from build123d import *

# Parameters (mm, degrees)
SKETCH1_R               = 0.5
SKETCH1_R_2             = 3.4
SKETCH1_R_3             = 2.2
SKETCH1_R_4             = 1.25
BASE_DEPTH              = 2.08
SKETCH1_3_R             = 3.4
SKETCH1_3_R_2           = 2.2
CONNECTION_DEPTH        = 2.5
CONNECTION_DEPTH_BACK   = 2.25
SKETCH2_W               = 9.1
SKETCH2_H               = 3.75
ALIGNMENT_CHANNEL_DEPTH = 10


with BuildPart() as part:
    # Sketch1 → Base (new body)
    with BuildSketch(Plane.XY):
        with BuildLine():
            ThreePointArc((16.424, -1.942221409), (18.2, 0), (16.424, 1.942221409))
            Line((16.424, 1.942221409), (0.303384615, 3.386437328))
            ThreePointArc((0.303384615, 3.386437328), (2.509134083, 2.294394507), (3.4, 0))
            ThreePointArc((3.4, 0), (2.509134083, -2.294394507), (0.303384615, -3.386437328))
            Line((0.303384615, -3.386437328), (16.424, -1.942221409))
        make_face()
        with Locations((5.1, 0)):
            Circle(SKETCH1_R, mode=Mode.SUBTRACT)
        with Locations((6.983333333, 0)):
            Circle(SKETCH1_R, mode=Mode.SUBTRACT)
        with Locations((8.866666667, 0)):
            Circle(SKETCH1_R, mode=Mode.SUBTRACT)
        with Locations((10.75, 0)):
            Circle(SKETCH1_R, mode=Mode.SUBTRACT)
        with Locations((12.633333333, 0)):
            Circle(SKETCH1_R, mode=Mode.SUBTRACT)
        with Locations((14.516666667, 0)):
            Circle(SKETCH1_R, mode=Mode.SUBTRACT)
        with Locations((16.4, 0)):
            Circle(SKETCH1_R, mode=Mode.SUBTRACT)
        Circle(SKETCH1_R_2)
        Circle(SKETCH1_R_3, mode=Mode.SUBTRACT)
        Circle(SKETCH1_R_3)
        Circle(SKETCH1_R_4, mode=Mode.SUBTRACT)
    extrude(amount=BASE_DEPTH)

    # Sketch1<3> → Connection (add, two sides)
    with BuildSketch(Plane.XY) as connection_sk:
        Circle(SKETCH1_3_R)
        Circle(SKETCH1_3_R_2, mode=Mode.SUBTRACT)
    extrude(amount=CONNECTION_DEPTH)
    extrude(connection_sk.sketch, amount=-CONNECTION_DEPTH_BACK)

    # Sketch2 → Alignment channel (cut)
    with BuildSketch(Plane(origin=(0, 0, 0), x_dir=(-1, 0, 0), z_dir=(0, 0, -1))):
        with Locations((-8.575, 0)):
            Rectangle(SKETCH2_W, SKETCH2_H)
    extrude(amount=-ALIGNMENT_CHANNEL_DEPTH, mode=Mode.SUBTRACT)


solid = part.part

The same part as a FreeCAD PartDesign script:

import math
import FreeCAD as App
import Part
import Sketcher


def add_polygon(sketch, points):
    """Adds a closed chain of lines whose ends are joined by coincident constraints."""
    first, n = sketch.GeometryCount, len(points)
    for a, b in zip(points, points[1:] + points[:1]):
        sketch.addGeometry(Part.LineSegment(App.Vector(*a, 0), App.Vector(*b, 0)), False)
    for i in range(n):
        sketch.addConstraint(Sketcher.Constraint("Coincident", first + i, 2, first + (i + 1) % n, 1))

doc = App.newDocument("Part")
body = doc.addObject("PartDesign::Body", "Body")

# Sketch on XY plane
sketch1 = body.newObject("Sketcher::SketchObject", "Sketch")
sketch1.AttachmentSupport = (doc.getObject("XY_Plane"), [""])
sketch1.MapMode = "FlatFace"
sketch1.addGeometry(Part.ArcOfCircle(Part.Circle(App.Vector(16.25, 0, 0), App.Vector(0, 0, 1), 1.95), math.radians(-84.880645), math.radians(84.880645)), False)
sketch1.addGeometry(Part.LineSegment(App.Vector(16.424, 1.942221, 0), App.Vector(0.303385, 3.386437, 0)), False)
sketch1.addGeometry(Part.ArcOfCircle(Part.Circle(App.Vector(0, 0, 0), App.Vector(0, 0, 1), 3.4), math.radians(84.880645), math.radians(275.119355)), False)
sketch1.addGeometry(Part.LineSegment(App.Vector(0.303385, -3.386437, 0), App.Vector(16.424, -1.942221, 0)), False)
sketch1.addGeometry(Part.Circle(App.Vector(0, 0, 0), App.Vector(0, 0, 1), 1.25), False)
sketch1.addGeometry(Part.Circle(App.Vector(5.1, 0, 0), App.Vector(0, 0, 1), 0.5), False)
sketch1.addGeometry(Part.Circle(App.Vector(6.983333, 0, 0), App.Vector(0, 0, 1), 0.5), False)
sketch1.addGeometry(Part.Circle(App.Vector(8.866667, 0, 0), App.Vector(0, 0, 1), 0.5), False)
sketch1.addGeometry(Part.Circle(App.Vector(10.75, 0, 0), App.Vector(0, 0, 1), 0.5), False)
sketch1.addGeometry(Part.Circle(App.Vector(12.633333, 0, 0), App.Vector(0, 0, 1), 0.5), False)
sketch1.addGeometry(Part.Circle(App.Vector(14.516667, 0, 0), App.Vector(0, 0, 1), 0.5), False)
sketch1.addGeometry(Part.Circle(App.Vector(16.4, 0, 0), App.Vector(0, 0, 1), 0.5), False)
sketch1.addConstraint(Sketcher.Constraint("Tangent", 0, 2, 1, 1))
sketch1.addConstraint(Sketcher.Constraint("Tangent", 1, 2, 2, 1))
sketch1.addConstraint(Sketcher.Constraint("Tangent", 2, 2, 3, 1))
sketch1.addConstraint(Sketcher.Constraint("Tangent", 3, 2, 0, 1))
sketch1.addConstraint(Sketcher.Constraint("Coincident", 2, 3, -1, 1))
sketch1.addConstraint(Sketcher.Constraint("Coincident", 4, 3, -1, 1))
sketch1.addConstraint(Sketcher.Constraint("Equal", 5, 6))
sketch1.addConstraint(Sketcher.Constraint("Equal", 6, 7))
sketch1.addConstraint(Sketcher.Constraint("Equal", 7, 8))
sketch1.addConstraint(Sketcher.Constraint("Equal", 8, 9))
sketch1.addConstraint(Sketcher.Constraint("Equal", 9, 10))
sketch1.addConstraint(Sketcher.Constraint("Equal", 10, 11))
sketch1.addConstraint(Sketcher.Constraint("PointOnObject", 0, 3, -1))
sketch1.addConstraint(Sketcher.Constraint("PointOnObject", 5, 3, -1))
sketch1.addConstraint(Sketcher.Constraint("PointOnObject", 6, 3, -1))
sketch1.addConstraint(Sketcher.Constraint("PointOnObject", 7, 3, -1))
sketch1.addConstraint(Sketcher.Constraint("PointOnObject", 8, 3, -1))
sketch1.addConstraint(Sketcher.Constraint("PointOnObject", 9, 3, -1))
sketch1.addConstraint(Sketcher.Constraint("PointOnObject", 10, 3, -1))
sketch1.addConstraint(Sketcher.Constraint("PointOnObject", 11, 3, -1))
sketch1.addConstraint(Sketcher.Constraint("Diameter", 5, 1.0))
sketch1.addConstraint(Sketcher.Constraint("Diameter", 4, 2.5))
sketch1.addConstraint(Sketcher.Constraint("Radius", 2, 3.4))
sketch1.addConstraint(Sketcher.Constraint("Radius", 0, 1.95))
sketch1.addConstraint(Sketcher.Constraint("DistanceX", -1, 1, 5, 3, 5.1))
sketch1.addConstraint(Sketcher.Constraint("DistanceX", -1, 1, 11, 3, 16.4))
sketch1.addConstraint(Sketcher.Constraint("DistanceX", 8, 3, 0, 3, 5.5))
sketch1.addConstraint(Sketcher.Constraint("DistanceX", -1, 1, 0, 3, 16.25))
sketch1.addConstraint(Sketcher.Constraint("DistanceX", 6, 3, 9, 3, 5.65))
sketch1.addConstraint(Sketcher.Constraint("DistanceX", 7, 3, 10, 3, 5.65))
sketch1.addConstraint(Sketcher.Constraint("DistanceX", 1, 2, 6, 3, 6.679949))
sketch1.addConstraint(Sketcher.Constraint("DistanceX", -1, 1, 7, 3, 8.866667))
pad1 = body.newObject("PartDesign::Pad", "Pad")
pad1.Profile = sketch1
pad1.Length = 2.08

# Sketch on XY plane
sketch2 = body.newObject("Sketcher::SketchObject", "Sketch001")
sketch2.AttachmentSupport = (doc.getObject("XY_Plane"), [""])
sketch2.MapMode = "FlatFace"
sketch2.addGeometry(Part.Circle(App.Vector(0, 0, 0), App.Vector(0, 0, 1), 3.4), False)
sketch2.addGeometry(Part.Circle(App.Vector(0, 0, 0), App.Vector(0, 0, 1), 2.2), False)
sketch2.addConstraint(Sketcher.Constraint("Coincident", 0, 3, -1, 1))
sketch2.addConstraint(Sketcher.Constraint("Coincident", 1, 3, -1, 1))
sketch2.addConstraint(Sketcher.Constraint("Diameter", 0, 6.8))
sketch2.addConstraint(Sketcher.Constraint("Diameter", 1, 4.4))
pad2 = body.newObject("PartDesign::Pad", "Pad001")
pad2.Profile = sketch2
pad2.Type = "TwoLengths"
pad2.Length = 2.5
pad2.Length2 = 2.25

# Sketch on XY plane
sketch3 = body.newObject("Sketcher::SketchObject", "Sketch002")
sketch3.AttachmentSupport = (doc.getObject("XY_Plane"), [""])
sketch3.MapMode = "FlatFace"
add_polygon(sketch3, [(13.125, 1.875), (13.125, -1.875), (4.025, -1.875), (4.025, 1.875)])  # lines 0-3
sketch3.addConstraint(Sketcher.Constraint("Vertical", 0))
sketch3.addConstraint(Sketcher.Constraint("Horizontal", 1))
sketch3.addConstraint(Sketcher.Constraint("Vertical", 2))
sketch3.addConstraint(Sketcher.Constraint("Horizontal", 3))
sketch3.addConstraint(Sketcher.Constraint("DistanceX", 1, 2, 1, 1, 9.1))
sketch3.addConstraint(Sketcher.Constraint("DistanceY", 0, 2, 0, 1, 3.75))
sketch3.addConstraint(Sketcher.Constraint("DistanceX", -1, 1, 0, 2, 13.125))
sketch3.addConstraint(Sketcher.Constraint("DistanceY", 0, 2, -1, 1, 1.875))
pocket1 = body.newObject("PartDesign::Pocket", "Pocket")
pocket1.Profile = sketch3
pocket1.Length = 10
pocket1.Reversed = True

doc.recompute()
